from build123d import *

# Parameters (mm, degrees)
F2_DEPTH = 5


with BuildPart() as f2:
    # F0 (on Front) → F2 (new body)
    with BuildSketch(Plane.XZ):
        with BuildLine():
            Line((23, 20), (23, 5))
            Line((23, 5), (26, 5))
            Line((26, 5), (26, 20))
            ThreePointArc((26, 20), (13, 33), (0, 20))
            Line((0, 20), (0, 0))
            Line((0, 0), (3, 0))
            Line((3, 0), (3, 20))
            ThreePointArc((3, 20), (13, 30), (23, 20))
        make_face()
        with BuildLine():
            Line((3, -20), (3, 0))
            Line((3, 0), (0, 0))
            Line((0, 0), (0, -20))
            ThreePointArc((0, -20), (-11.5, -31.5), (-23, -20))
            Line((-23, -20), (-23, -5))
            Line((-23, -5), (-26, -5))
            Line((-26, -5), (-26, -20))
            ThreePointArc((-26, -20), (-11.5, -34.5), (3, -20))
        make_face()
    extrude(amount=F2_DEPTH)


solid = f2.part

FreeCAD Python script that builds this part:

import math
import FreeCAD as App
import Part
import Sketcher
from FreeCAD import Vector

doc = App.newDocument("Part")
body = doc.addObject("PartDesign::Body", "Body")

sketch1 = body.newObject("Sketcher::SketchObject", "Sketch")
sketch1.AttachmentSupport = (doc.getObject("XZ_Plane"), [""])
sketch1.MapMode = "FlatFace"
sketch1.addGeometry([
    Part.LineSegment(Vector(23, 20, 0), Vector(23, 5, 0)),
    Part.LineSegment(Vector(23, 5, 0), Vector(26, 5, 0)),
    Part.LineSegment(Vector(26, 5, 0), Vector(26, 20, 0)),
    Part.ArcOfCircle(Part.Circle(Vector(13, 20, 0), Vector(0, 0, 1), 13), math.radians(0), math.radians(180)),
    Part.LineSegment(Vector(0, 20, 0), Vector(0, -20, 0)),
    Part.ArcOfCircle(Part.Circle(Vector(-11.5, -20, 0), Vector(0, 0, 1), 11.5), math.radians(180), math.radians(360)),
    Part.LineSegment(Vector(-23, -20, 0), Vector(-23, -5, 0)),
    Part.LineSegment(Vector(-23, -5, 0), Vector(-26, -5, 0)),
    Part.LineSegment(Vector(-26, -5, 0), Vector(-26, -20, 0)),
    Part.ArcOfCircle(Part.Circle(Vector(-11.5, -20, 0), Vector(0, 0, 1), 14.5), math.radians(180), math.radians(360)),
    Part.LineSegment(Vector(3, -20, 0), Vector(3, 20, 0)),
    Part.ArcOfCircle(Part.Circle(Vector(13, 20, 0), Vector(0, 0, 1), 10), math.radians(0), math.radians(180)),
], False)
sketch1.addConstraint([
    Sketcher.Constraint("Coincident", 0, 2, 1, 1),
    Sketcher.Constraint("Coincident", 1, 2, 2, 1),
    Sketcher.Constraint("Tangent", 2, 2, 3, 1),
    Sketcher.Constraint("Tangent", 3, 2, 4, 1),
    Sketcher.Constraint("Tangent", 4, 2, 5, 2),
    Sketcher.Constraint("Tangent", 5, 1, 6, 1),
    Sketcher.Constraint("Coincident", 6, 2, 7, 1),
    Sketcher.Constraint("Coincident", 7, 2, 8, 1),
    Sketcher.Constraint("Tangent", 8, 2, 9, 1),
    Sketcher.Constraint("Tangent", 9, 2, 10, 1),
    Sketcher.Constraint("Tangent", 10, 2, 11, 2),
    Sketcher.Constraint("Tangent", 11, 1, 0, 1),
    Sketcher.Constraint("Vertical", 0),
    Sketcher.Constraint("Horizontal", 1),
    Sketcher.Constraint("Vertical", 2),
    Sketcher.Constraint("Vertical", 4),
    Sketcher.Constraint("Vertical", 6),
    Sketcher.Constraint("Horizontal", 7),
    Sketcher.Constraint("Vertical", 8),
    Sketcher.Constraint("Vertical", 10),
    Sketcher.Constraint("Coincident", 9, 3, 5, 3),
    Sketcher.Constraint("Coincident", 11, 3, 3, 3),
    Sketcher.Constraint("Symmetric", 3, 2, 4, 2, -1, 1),
    Sketcher.Constraint("Symmetric", 0, 2, 6, 2, -1, 1),
    Sketcher.Constraint("Radius", 3, 13.0),
    Sketcher.Constraint("Radius", 11, 10.0),
    Sketcher.Constraint("DistanceY", 0, 2, 0, 1, 15.0),
    Sketcher.Constraint("DistanceY", 4, 2, 4, 1, 40.0),
])
pad1 = body.newObject("PartDesign::Pad", "Pad")
pad1.Profile = sketch1
pad1.Length = 5

doc.recompute()
